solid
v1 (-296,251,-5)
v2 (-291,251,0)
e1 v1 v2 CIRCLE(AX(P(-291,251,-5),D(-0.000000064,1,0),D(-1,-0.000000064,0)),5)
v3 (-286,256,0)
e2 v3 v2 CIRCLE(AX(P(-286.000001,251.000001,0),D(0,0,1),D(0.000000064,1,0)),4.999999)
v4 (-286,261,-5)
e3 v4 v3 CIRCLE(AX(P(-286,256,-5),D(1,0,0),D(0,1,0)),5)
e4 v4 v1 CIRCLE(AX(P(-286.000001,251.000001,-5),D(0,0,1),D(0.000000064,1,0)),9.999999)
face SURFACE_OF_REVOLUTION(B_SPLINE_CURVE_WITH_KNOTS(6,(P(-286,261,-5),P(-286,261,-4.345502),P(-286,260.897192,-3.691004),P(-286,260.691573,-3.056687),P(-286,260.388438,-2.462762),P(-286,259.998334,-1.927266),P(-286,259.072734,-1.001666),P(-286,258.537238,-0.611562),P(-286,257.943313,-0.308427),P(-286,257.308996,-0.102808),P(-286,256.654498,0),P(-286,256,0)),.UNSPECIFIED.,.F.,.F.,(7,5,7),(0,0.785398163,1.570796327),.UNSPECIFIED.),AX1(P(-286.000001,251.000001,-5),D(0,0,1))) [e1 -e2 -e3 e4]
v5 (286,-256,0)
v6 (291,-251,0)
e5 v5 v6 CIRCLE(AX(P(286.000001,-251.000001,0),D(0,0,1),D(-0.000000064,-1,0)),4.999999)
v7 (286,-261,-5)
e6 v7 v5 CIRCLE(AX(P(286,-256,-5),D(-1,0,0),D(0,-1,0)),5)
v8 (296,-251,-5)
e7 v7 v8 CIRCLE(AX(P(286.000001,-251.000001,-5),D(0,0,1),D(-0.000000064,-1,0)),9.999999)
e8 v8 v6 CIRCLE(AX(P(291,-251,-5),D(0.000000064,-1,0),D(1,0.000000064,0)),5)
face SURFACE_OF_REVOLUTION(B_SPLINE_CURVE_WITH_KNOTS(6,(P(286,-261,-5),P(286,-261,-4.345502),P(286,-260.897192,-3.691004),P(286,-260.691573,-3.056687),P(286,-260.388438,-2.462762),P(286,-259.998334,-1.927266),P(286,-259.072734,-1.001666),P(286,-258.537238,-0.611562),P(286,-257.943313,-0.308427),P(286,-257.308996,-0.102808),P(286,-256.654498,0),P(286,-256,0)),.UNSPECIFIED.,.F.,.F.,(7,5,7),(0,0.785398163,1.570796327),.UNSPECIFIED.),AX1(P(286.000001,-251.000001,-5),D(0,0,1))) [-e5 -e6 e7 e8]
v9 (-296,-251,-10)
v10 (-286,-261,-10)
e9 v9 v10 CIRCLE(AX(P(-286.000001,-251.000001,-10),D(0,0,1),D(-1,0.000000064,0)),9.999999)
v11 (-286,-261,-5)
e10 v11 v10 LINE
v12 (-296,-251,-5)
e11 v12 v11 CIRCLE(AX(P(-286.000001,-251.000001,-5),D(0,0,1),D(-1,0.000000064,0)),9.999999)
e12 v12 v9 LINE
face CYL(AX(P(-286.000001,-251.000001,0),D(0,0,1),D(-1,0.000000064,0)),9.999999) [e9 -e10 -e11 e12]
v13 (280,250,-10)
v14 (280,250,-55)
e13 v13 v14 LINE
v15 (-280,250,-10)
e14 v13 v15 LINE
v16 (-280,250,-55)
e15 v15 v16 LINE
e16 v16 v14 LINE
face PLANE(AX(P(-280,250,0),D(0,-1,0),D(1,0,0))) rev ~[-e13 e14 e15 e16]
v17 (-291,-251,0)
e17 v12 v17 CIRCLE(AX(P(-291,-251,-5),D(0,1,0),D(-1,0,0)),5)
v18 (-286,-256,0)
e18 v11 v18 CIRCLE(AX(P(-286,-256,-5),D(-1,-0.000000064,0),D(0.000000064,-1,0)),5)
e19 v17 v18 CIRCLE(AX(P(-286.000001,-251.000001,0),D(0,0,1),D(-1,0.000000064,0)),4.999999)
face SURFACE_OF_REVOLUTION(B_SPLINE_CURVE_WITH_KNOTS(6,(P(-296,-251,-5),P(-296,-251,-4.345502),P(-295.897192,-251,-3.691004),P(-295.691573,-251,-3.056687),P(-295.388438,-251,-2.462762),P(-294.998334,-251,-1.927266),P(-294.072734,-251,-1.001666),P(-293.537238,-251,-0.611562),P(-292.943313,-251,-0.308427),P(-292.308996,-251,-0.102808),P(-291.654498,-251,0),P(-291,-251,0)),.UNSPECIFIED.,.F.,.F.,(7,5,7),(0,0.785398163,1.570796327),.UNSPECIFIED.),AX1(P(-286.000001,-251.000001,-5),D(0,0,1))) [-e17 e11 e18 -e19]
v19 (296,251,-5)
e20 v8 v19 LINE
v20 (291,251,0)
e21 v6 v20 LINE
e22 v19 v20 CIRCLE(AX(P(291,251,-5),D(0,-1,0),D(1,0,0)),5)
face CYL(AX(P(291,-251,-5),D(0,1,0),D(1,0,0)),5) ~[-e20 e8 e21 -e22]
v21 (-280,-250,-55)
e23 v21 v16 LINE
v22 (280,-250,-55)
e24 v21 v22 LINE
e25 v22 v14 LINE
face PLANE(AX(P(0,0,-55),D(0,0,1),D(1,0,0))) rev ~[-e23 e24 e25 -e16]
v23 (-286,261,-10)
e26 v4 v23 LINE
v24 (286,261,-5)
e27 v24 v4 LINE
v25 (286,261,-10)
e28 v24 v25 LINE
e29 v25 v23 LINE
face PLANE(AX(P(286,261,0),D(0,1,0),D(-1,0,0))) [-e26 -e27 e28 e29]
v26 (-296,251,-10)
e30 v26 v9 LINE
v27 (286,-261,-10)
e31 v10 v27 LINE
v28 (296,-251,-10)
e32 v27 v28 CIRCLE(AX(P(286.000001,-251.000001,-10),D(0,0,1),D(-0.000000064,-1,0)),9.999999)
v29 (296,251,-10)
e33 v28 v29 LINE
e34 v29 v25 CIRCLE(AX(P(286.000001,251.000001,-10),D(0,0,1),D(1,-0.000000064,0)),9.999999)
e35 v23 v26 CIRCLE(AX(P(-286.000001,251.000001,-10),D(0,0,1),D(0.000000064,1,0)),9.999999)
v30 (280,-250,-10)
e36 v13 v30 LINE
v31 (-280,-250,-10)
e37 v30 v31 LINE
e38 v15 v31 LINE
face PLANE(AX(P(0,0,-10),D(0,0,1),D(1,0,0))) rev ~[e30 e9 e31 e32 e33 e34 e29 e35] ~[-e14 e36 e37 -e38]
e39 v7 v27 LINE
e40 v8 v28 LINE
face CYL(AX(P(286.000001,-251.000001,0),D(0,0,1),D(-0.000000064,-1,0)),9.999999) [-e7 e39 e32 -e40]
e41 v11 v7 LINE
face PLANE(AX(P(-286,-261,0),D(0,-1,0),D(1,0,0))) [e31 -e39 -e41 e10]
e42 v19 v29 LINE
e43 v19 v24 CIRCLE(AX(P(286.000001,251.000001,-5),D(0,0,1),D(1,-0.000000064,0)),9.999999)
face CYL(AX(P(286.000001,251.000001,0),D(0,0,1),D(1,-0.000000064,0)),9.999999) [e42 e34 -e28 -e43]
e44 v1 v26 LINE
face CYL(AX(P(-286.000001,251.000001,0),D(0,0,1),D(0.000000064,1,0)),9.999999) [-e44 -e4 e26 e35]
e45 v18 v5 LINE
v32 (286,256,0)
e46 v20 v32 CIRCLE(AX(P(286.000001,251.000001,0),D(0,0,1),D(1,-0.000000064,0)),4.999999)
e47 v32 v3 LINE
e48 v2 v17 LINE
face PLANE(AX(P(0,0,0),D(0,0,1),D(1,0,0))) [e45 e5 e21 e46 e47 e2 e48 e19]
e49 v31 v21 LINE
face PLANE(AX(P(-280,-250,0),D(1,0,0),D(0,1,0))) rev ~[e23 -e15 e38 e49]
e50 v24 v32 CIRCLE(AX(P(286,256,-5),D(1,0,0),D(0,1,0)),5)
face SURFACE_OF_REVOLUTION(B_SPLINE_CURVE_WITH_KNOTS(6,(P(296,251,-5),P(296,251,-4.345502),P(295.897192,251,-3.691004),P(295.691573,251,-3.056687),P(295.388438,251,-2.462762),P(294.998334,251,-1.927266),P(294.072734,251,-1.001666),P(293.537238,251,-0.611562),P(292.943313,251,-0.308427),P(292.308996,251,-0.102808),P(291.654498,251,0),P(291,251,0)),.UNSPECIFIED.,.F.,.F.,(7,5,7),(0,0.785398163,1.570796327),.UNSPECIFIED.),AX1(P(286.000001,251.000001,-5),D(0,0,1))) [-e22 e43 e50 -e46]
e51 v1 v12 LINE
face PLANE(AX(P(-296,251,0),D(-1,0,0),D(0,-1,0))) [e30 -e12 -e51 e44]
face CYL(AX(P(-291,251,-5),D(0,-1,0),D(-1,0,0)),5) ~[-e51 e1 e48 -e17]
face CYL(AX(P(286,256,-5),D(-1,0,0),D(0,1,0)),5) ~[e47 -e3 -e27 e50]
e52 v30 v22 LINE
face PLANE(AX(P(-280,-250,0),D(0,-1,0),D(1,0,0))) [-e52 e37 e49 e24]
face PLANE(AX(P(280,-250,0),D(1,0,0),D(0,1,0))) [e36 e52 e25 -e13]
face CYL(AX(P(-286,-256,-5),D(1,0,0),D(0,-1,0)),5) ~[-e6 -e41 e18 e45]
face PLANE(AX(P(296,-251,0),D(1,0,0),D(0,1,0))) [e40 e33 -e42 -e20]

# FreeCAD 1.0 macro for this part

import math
import FreeCAD as App
import Part
import Sketcher

V = App.Vector


def edges_at(feature, points):
    """Names of the edges that pass closest to the given points."""
    edges = feature.Shape.Edges
    near = lambda p: min(range(len(edges)), key=lambda i: edges[i].distToShape(Part.Vertex(*p))[0])
    return sorted({f"Edge{near(p) + 1}" for p in points})


def add_polygon(sketch, points):
    """Adds a closed chain of lines whose ends are joined by coincident constraints."""
    first, n = sketch.GeometryCount, len(points)
    for a, b in zip(points, points[1:] + points[:1]):
        sketch.addGeometry(Part.LineSegment(App.Vector(*a, 0), App.Vector(*b, 0)), False)
    for i in range(n):
        sketch.addConstraint(Sketcher.Constraint("Coincident", first + i, 2, first + (i + 1) % n, 1))

doc = App.newDocument("Part")
body = doc.addObject("PartDesign::Body", "Body")

# Sketch on XY plane
sketch1 = body.newObject("Sketcher::SketchObject", "Sketch")
sketch1.AttachmentSupport = (doc.getObject("XY_Plane"), [""])
sketch1.MapMode = "FlatFace"
add_polygon(sketch1, [(-280, 250), (-280, -250), (280, -250), (280, 250)])  # lines 0-3
sketch1.addConstraint([
    Sketcher.Constraint("Vertical", 0),
    Sketcher.Constraint("Horizontal", 1),
    Sketcher.Constraint("Vertical", 2),
    Sketcher.Constraint("Horizontal", 3),
    Sketcher.Constraint("Symmetric", 0, 2, 2, 2, -1, 1),
    Sketcher.Constraint("DistanceX", 1, 1, 1, 2, 560.0),
    Sketcher.Constraint("DistanceY", 0, 2, 0, 1, 500.0),
])
pad1 = body.newObject("PartDesign::Pad", "Pad")
pad1.Profile = sketch1
pad1.Length = 55
pad1.Reversed = True

# Sketch on XY plane
sketch2 = body.newObject("Sketcher::SketchObject", "Sketch001")
sketch2.AttachmentSupport = (doc.getObject("XY_Plane"), [""])
sketch2.MapMode = "FlatFace"
sketch2.addGeometry([
    Part.LineSegment(V(286, 261, 0), V(-286, 261, 0)),  # 0
    Part.ArcOfCircle(Part.Circle(V(-286, 251, 0), V(0, 0, 1), 10), math.radians(90), math.radians(180)),  # 1
    Part.LineSegment(V(-296, 251, 0), V(-296, -251, 0)),  # 2
    Part.ArcOfCircle(Part.Circle(V(-286, -251, 0), V(0, 0, 1), 10), math.radians(180), math.radians(270)),  # 3
    Part.LineSegment(V(-286, -261, 0), V(286, -261, 0)),  # 4
    Part.ArcOfCircle(Part.Circle(V(286, -251, 0), V(0, 0, 1), 10), math.radians(-90), math.radians(0)),  # 5
    Part.LineSegment(V(296, -251, 0), V(296, 251, 0)),  # 6
    Part.ArcOfCircle(Part.Circle(V(286, 251, 0), V(0, 0, 1), 10), math.radians(0), math.radians(90)),  # 7
], False)
sketch2.addConstraint([
    Sketcher.Constraint("Tangent", 0, 2, 1, 1),
    Sketcher.Constraint("Tangent", 1, 2, 2, 1),
    Sketcher.Constraint("Tangent", 2, 2, 3, 1),
    Sketcher.Constraint("Tangent", 3, 2, 4, 1),
    Sketcher.Constraint("Tangent", 4, 2, 5, 1),
    Sketcher.Constraint("Tangent", 5, 2, 6, 1),
    Sketcher.Constraint("Tangent", 6, 2, 7, 1),
    Sketcher.Constraint("Tangent", 7, 2, 0, 1),
    Sketcher.Constraint("Horizontal", 0),
    Sketcher.Constraint("Vertical", 2),
    Sketcher.Constraint("Horizontal", 4),
    Sketcher.Constraint("Vertical", 6),
    Sketcher.Constraint("Equal", 1, 3),
    Sketcher.Constraint("Equal", 3, 5),
    Sketcher.Constraint("Equal", 5, 7),
    Sketcher.Constraint("Symmetric", 1, 3, 5, 3, -1, 1),
    Sketcher.Constraint("Radius", 1, 9.999999),
    Sketcher.Constraint("DistanceX", 0, 2, 0, 1, 572.0),
    Sketcher.Constraint("DistanceY", 2, 2, 2, 1, 502.0),
])
pad2 = body.newObject("PartDesign::Pad", "Pad001")
pad2.Profile = sketch2
pad2.Length = 10
pad2.Reversed = True
doc.recompute()

fillet = body.newObject("PartDesign::Fillet", "Fillet")
fillet.Base = (pad2, edges_at(pad2, [
    (0, 261, 0),
    (-293.071, 258.071, 0),
    (-296, 0, 0),
    (-293.071, -258.071, 0),
    (0, -261, 0),
    (293.071, -258.071, 0),
    (296, 0, 0),
    (293.071, 258.071, 0),
]))
fillet.Radius = 5

doc.recompute()
